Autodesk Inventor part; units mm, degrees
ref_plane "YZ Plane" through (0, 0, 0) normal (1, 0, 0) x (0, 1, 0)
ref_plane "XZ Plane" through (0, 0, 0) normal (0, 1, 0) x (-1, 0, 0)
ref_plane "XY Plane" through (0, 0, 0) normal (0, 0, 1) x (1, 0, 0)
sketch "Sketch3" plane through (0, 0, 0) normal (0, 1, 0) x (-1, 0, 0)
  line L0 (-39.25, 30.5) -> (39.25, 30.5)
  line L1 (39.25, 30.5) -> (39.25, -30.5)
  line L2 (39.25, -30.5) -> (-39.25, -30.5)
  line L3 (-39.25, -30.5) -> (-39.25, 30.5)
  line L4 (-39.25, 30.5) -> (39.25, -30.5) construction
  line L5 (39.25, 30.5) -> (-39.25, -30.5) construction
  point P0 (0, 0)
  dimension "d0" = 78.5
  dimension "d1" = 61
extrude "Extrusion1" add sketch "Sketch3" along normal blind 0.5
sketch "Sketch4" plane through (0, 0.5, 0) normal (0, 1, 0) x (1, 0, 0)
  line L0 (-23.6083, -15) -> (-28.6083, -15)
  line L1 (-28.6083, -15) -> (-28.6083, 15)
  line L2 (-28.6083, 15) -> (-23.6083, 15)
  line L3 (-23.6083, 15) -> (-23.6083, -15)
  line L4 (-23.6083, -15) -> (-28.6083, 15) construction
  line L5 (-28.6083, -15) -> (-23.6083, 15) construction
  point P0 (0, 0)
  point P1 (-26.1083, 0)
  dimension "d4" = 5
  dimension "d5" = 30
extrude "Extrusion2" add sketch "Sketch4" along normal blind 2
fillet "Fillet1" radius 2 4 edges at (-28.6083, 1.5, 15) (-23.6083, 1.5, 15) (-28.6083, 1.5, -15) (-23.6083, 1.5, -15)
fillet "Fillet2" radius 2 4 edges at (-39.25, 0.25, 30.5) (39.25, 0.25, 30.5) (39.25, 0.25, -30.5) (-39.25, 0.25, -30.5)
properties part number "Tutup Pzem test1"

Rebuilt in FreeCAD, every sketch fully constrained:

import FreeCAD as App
import Part
import Sketcher

V = App.Vector


def edges_at(feature, points):
    """Names of the edges that pass closest to the given points."""
    edges = feature.Shape.Edges
    near = lambda p: min(range(len(edges)), key=lambda i: edges[i].distToShape(Part.Vertex(*p))[0])
    return sorted({f"Edge{near(p) + 1}" for p in points})


def add_polygon(sketch, points):
    """Adds a closed chain of lines whose ends are joined by coincident constraints."""
    first, n = sketch.GeometryCount, len(points)
    for a, b in zip(points, points[1:] + points[:1]):
        sketch.addGeometry(Part.LineSegment(App.Vector(*a, 0), App.Vector(*b, 0)), False)
    for i in range(n):
        sketch.addConstraint(Sketcher.Constraint("Coincident", first + i, 2, first + (i + 1) % n, 1))

doc = App.newDocument("Part")
params = doc.addObject("Spreadsheet::Sheet", "Params")
for row, (alias, value) in enumerate([
    ("sketch1_height", "61 mm"),
    ("sketch1_width", "78.5 mm"),
    ("pad1_length", "0.5 mm"),
    ("sketch2_width", "5 mm"),
    ("sketch2_height", "30 mm"),
    ("pad2_length", "2 mm"),
    ("fillet_radius", "2 mm"),
    ("fillet2_radius", "2 mm"),
], start=1):
    params.set(f"A{row}", alias)
    params.set(f"B{row}", "=" + value)
    params.setAlias(f"B{row}", alias)

body = doc.addObject("PartDesign::Body", "Body")

# Sketch on XZ plane
sketch1 = body.newObject("Sketcher::SketchObject", "Sketch")
sketch1.AttachmentSupport = (doc.getObject("XZ_Plane"), [""])
sketch1.MapMode = "FlatFace"
add_polygon(sketch1, [(-39.25, 30.5), (39.25, 30.5), (39.25, -30.5), (-39.25, -30.5)])  # lines 0-3
sketch1.addConstraint(Sketcher.Constraint("Horizontal", 0))
sketch1.addConstraint(Sketcher.Constraint("Vertical", 1))
sketch1.addConstraint(Sketcher.Constraint("Horizontal", 2))
sketch1.addConstraint(Sketcher.Constraint("Vertical", 3))
sketch1.addConstraint(Sketcher.Constraint("Symmetric", 0, 2, 2, 2, -1, 1))
sketch1.addConstraint(Sketcher.Constraint("DistanceY", 1, 2, 1, 1, 61.0))
sketch1.addConstraint(Sketcher.Constraint("DistanceX", 0, 1, 0, 2, 78.5))
sketch1.setExpression("Constraints[9]", "Params.sketch1_height")
sketch1.setExpression("Constraints[10]", "Params.sketch1_width")
pad1 = body.newObject("PartDesign::Pad", "Pad")
pad1.Profile = sketch1
pad1.setExpression("Length", "Params.pad1_length")
pad1.Reversed = True

# Sketch on XZ plane
sketch2 = body.newObject("Sketcher::SketchObject", "Sketch001")
sketch2.AttachmentSupport = (doc.getObject("XZ_Plane"), [""])
sketch2.MapMode = "FlatFace"
sketch2.AttachmentOffset = App.Placement(V(0, 0, -0.5), App.Rotation())
add_polygon(sketch2, [(-28.6083, 15), (-23.6083, 15), (-23.6083, -15), (-28.6083, -15)])  # lines 0-3
sketch2.addConstraint(Sketcher.Constraint("Horizontal", 0))
sketch2.addConstraint(Sketcher.Constraint("Vertical", 1))
sketch2.addConstraint(Sketcher.Constraint("Horizontal", 2))
sketch2.addConstraint(Sketcher.Constraint("Vertical", 3))
sketch2.addConstraint(Sketcher.Constraint("DistanceX", 0, 1, 0, 2, 5.0))
sketch2.addConstraint(Sketcher.Constraint("DistanceY", 1, 2, 1, 1, 30.0))
sketch2.addConstraint(Sketcher.Constraint("DistanceY", -1, 1, 0, 2, 15.0))
sketch2.addConstraint(Sketcher.Constraint("DistanceX", 0, 2, -1, 1, 23.6083))
sketch2.setExpression("Constraints[8]", "Params.sketch2_width")
sketch2.setExpression("Constraints[9]", "Params.sketch2_height")
pad2 = body.newObject("PartDesign::Pad", "Pad001")
pad2.Profile = sketch2
pad2.setExpression("Length", "Params.pad2_length")
pad2.Reversed = True
doc.recompute()

fillet = body.newObject("PartDesign::Fillet", "Fillet")
fillet.Base = (pad2, edges_at(pad2, [
    (-28.608, 1.5, 15),
    (-23.608, 1.5, 15),
    (-28.608, 1.5, -15),
    (-23.608, 1.5, -15),
]))
fillet.setExpression("Radius", "Params.fillet_radius")
doc.recompute()

fillet2 = body.newObject("PartDesign::Fillet", "Fillet001")
fillet2.Base = (fillet, edges_at(fillet, [
    (-39.25, 0.25, 30.5),
    (39.25, 0.25, 30.5),
    (39.25, 0.25, -30.5),
    (-39.25, 0.25, -30.5),
]))
fillet2.setExpression("Radius", "Params.fillet2_radius")

doc.recompute()
